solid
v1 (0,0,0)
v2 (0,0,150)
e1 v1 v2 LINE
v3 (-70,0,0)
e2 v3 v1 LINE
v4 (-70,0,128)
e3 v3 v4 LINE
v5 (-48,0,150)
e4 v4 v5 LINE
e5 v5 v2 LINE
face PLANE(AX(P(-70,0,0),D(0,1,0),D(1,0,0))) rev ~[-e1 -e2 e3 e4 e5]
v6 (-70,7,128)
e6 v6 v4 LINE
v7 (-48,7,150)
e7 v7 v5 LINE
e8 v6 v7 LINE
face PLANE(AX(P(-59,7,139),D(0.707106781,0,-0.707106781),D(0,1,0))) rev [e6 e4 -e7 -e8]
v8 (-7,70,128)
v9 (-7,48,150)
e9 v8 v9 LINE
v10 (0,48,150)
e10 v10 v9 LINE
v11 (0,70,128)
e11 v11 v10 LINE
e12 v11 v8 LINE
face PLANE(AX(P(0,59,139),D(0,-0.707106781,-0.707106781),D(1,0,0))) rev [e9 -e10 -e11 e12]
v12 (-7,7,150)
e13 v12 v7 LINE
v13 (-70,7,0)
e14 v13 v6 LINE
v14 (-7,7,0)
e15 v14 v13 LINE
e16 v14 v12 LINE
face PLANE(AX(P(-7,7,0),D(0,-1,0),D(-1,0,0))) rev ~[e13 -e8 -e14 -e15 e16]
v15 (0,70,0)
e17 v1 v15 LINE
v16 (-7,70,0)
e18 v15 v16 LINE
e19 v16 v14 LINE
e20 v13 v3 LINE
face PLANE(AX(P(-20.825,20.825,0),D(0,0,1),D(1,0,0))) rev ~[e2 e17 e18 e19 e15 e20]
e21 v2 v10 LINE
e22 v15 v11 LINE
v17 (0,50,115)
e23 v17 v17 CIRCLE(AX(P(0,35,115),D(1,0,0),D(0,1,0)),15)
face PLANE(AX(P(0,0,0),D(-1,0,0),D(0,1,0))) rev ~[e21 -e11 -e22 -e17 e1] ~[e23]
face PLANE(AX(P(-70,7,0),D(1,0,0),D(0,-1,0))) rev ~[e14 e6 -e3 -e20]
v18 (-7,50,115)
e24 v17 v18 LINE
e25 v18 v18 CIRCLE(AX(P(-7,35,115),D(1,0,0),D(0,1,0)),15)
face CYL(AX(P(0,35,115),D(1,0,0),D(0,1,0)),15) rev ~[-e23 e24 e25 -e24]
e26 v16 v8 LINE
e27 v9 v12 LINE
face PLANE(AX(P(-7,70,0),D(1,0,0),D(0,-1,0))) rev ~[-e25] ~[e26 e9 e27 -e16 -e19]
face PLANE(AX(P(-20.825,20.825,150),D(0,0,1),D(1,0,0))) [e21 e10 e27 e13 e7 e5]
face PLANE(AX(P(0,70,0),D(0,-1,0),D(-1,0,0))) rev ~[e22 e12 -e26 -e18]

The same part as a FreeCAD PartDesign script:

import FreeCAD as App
import Part
import Sketcher

V = App.Vector


def edges_at(feature, points):
    """Names of the edges that pass closest to the given points."""
    edges = feature.Shape.Edges
    near = lambda p: min(range(len(edges)), key=lambda i: edges[i].distToShape(Part.Vertex(*p))[0])
    return sorted({f"Edge{near(p) + 1}" for p in points})


def add_polygon(sketch, points):
    """Adds a closed chain of lines whose ends are joined by coincident constraints."""
    first, n = sketch.GeometryCount, len(points)
    for a, b in zip(points, points[1:] + points[:1]):
        sketch.addGeometry(Part.LineSegment(App.Vector(*a, 0), App.Vector(*b, 0)), False)
    for i in range(n):
        sketch.addConstraint(Sketcher.Constraint("Coincident", first + i, 2, first + (i + 1) % n, 1))

doc = App.newDocument("Part")
body = doc.addObject("PartDesign::Body", "Body")

# Sketch on XY plane
sketch1 = body.newObject("Sketcher::SketchObject", "Sketch")
sketch1.AttachmentSupport = (doc.getObject("XY_Plane"), [""])
sketch1.MapMode = "FlatFace"
add_polygon(sketch1, [(-70, 0), (0, 0), (0, 70), (-7, 70), (-7, 7), (-70, 7)])  # lines 0-5
sketch1.addConstraint(Sketcher.Constraint("Horizontal", 0))
sketch1.addConstraint(Sketcher.Constraint("Vertical", 1))
sketch1.addConstraint(Sketcher.Constraint("Horizontal", 2))
sketch1.addConstraint(Sketcher.Constraint("Vertical", 3))
sketch1.addConstraint(Sketcher.Constraint("Horizontal", 4))
sketch1.addConstraint(Sketcher.Constraint("Vertical", 5))
sketch1.addConstraint(Sketcher.Constraint("Coincident", 0, 2, -1, 1))
sketch1.addConstraint(Sketcher.Constraint("Equal", 0, 1))
sketch1.addConstraint(Sketcher.Constraint("Equal", 4, 3))
sketch1.addConstraint(Sketcher.Constraint("DistanceX", 0, 1, 0, 2, 70.0))
sketch1.addConstraint(Sketcher.Constraint("DistanceX", 2, 2, 2, 1, 7.0))
pad1 = body.newObject("PartDesign::Pad", "Pad")
pad1.Profile = sketch1
pad1.Length = 150
doc.recompute()

chamfer = body.newObject("PartDesign::Chamfer", "Chamfer")
chamfer.Base = (pad1, edges_at(pad1, [(-70, 3.5, 150), (-3.5, 70, 150)]))
chamfer.Size = 22

# Sketch on YZ plane
sketch2 = body.newObject("Sketcher::SketchObject", "Sketch001")
sketch2.AttachmentSupport = (doc.getObject("YZ_Plane"), [""])
sketch2.MapMode = "FlatFace"
sketch2.addGeometry(Part.Circle(V(35, 115, 0), V(0, 0, 1), 15), False)
sketch2.addConstraint(Sketcher.Constraint("Diameter", 0, 30.0))
sketch2.addConstraint(Sketcher.Constraint("DistanceX", -1, 1, 0, 3, 35.0))
sketch2.addConstraint(Sketcher.Constraint("DistanceY", -1, 1, 0, 3, 115.0))
pocket1 = body.newObject("PartDesign::Pocket", "Pocket")
pocket1.Profile = sketch2
pocket1.Length = 25

doc.recompute()
